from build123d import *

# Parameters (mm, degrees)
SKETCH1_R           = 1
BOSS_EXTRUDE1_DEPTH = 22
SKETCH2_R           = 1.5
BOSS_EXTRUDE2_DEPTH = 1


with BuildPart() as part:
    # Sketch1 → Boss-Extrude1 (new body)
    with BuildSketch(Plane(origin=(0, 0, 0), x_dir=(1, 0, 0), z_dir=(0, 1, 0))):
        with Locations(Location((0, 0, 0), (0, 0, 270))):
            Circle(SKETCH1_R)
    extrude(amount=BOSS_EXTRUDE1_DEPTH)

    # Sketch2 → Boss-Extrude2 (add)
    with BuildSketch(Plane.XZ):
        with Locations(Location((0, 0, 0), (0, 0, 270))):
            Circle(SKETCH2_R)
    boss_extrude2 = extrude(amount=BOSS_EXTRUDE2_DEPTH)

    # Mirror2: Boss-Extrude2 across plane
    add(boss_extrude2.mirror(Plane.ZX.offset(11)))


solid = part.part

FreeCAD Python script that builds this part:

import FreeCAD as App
import Part
import Sketcher

V = App.Vector

doc = App.newDocument("Part")
body = doc.addObject("PartDesign::Body", "Body")

sketch1 = body.newObject("Sketcher::SketchObject", "Sketch")
sketch1.AttachmentSupport = (doc.getObject("XZ_Plane"), [""])
sketch1.MapMode = "FlatFace"
sketch1.addGeometry(Part.Circle(V(0, 0, 0), V(0, 0, 1), 1), False)
sketch1.addConstraint([
    Sketcher.Constraint("Coincident", 0, 3, -1, 1),
    Sketcher.Constraint("Diameter", 0, 2.0),
])
pad1 = body.newObject("PartDesign::Pad", "Pad")
pad1.Profile = sketch1
pad1.Length = 22
pad1.Reversed = True

sketch2 = body.newObject("Sketcher::SketchObject", "Sketch001")
sketch2.AttachmentSupport = (doc.getObject("XZ_Plane"), [""])
sketch2.MapMode = "FlatFace"
sketch2.addGeometry(Part.Circle(V(0, 0, 0), V(0, 0, 1), 1.5), False)
sketch2.addConstraint([
    Sketcher.Constraint("Coincident", 0, 3, -1, 1),
    Sketcher.Constraint("Diameter", 0, 3.0),
])
pad2 = body.newObject("PartDesign::Pad", "Pad001")
pad2.Profile = sketch2
pad2.Length = 1
doc.recompute()

datumplane = body.newObject("PartDesign::Plane", "DatumPlane")
datumplane.AttachmentSupport = (doc.getObject("XZ_Plane"), [""])
datumplane.MapMode = "FlatFace"
datumplane.AttachmentOffset = App.Placement(V(0, 0, -11), App.Rotation())
mirrored = body.newObject("PartDesign::Mirrored", "Mirrored")
mirrored.Originals = [pad2]
mirrored.MirrorPlane = (datumplane, [""])
body.Tip = mirrored

doc.recompute()
